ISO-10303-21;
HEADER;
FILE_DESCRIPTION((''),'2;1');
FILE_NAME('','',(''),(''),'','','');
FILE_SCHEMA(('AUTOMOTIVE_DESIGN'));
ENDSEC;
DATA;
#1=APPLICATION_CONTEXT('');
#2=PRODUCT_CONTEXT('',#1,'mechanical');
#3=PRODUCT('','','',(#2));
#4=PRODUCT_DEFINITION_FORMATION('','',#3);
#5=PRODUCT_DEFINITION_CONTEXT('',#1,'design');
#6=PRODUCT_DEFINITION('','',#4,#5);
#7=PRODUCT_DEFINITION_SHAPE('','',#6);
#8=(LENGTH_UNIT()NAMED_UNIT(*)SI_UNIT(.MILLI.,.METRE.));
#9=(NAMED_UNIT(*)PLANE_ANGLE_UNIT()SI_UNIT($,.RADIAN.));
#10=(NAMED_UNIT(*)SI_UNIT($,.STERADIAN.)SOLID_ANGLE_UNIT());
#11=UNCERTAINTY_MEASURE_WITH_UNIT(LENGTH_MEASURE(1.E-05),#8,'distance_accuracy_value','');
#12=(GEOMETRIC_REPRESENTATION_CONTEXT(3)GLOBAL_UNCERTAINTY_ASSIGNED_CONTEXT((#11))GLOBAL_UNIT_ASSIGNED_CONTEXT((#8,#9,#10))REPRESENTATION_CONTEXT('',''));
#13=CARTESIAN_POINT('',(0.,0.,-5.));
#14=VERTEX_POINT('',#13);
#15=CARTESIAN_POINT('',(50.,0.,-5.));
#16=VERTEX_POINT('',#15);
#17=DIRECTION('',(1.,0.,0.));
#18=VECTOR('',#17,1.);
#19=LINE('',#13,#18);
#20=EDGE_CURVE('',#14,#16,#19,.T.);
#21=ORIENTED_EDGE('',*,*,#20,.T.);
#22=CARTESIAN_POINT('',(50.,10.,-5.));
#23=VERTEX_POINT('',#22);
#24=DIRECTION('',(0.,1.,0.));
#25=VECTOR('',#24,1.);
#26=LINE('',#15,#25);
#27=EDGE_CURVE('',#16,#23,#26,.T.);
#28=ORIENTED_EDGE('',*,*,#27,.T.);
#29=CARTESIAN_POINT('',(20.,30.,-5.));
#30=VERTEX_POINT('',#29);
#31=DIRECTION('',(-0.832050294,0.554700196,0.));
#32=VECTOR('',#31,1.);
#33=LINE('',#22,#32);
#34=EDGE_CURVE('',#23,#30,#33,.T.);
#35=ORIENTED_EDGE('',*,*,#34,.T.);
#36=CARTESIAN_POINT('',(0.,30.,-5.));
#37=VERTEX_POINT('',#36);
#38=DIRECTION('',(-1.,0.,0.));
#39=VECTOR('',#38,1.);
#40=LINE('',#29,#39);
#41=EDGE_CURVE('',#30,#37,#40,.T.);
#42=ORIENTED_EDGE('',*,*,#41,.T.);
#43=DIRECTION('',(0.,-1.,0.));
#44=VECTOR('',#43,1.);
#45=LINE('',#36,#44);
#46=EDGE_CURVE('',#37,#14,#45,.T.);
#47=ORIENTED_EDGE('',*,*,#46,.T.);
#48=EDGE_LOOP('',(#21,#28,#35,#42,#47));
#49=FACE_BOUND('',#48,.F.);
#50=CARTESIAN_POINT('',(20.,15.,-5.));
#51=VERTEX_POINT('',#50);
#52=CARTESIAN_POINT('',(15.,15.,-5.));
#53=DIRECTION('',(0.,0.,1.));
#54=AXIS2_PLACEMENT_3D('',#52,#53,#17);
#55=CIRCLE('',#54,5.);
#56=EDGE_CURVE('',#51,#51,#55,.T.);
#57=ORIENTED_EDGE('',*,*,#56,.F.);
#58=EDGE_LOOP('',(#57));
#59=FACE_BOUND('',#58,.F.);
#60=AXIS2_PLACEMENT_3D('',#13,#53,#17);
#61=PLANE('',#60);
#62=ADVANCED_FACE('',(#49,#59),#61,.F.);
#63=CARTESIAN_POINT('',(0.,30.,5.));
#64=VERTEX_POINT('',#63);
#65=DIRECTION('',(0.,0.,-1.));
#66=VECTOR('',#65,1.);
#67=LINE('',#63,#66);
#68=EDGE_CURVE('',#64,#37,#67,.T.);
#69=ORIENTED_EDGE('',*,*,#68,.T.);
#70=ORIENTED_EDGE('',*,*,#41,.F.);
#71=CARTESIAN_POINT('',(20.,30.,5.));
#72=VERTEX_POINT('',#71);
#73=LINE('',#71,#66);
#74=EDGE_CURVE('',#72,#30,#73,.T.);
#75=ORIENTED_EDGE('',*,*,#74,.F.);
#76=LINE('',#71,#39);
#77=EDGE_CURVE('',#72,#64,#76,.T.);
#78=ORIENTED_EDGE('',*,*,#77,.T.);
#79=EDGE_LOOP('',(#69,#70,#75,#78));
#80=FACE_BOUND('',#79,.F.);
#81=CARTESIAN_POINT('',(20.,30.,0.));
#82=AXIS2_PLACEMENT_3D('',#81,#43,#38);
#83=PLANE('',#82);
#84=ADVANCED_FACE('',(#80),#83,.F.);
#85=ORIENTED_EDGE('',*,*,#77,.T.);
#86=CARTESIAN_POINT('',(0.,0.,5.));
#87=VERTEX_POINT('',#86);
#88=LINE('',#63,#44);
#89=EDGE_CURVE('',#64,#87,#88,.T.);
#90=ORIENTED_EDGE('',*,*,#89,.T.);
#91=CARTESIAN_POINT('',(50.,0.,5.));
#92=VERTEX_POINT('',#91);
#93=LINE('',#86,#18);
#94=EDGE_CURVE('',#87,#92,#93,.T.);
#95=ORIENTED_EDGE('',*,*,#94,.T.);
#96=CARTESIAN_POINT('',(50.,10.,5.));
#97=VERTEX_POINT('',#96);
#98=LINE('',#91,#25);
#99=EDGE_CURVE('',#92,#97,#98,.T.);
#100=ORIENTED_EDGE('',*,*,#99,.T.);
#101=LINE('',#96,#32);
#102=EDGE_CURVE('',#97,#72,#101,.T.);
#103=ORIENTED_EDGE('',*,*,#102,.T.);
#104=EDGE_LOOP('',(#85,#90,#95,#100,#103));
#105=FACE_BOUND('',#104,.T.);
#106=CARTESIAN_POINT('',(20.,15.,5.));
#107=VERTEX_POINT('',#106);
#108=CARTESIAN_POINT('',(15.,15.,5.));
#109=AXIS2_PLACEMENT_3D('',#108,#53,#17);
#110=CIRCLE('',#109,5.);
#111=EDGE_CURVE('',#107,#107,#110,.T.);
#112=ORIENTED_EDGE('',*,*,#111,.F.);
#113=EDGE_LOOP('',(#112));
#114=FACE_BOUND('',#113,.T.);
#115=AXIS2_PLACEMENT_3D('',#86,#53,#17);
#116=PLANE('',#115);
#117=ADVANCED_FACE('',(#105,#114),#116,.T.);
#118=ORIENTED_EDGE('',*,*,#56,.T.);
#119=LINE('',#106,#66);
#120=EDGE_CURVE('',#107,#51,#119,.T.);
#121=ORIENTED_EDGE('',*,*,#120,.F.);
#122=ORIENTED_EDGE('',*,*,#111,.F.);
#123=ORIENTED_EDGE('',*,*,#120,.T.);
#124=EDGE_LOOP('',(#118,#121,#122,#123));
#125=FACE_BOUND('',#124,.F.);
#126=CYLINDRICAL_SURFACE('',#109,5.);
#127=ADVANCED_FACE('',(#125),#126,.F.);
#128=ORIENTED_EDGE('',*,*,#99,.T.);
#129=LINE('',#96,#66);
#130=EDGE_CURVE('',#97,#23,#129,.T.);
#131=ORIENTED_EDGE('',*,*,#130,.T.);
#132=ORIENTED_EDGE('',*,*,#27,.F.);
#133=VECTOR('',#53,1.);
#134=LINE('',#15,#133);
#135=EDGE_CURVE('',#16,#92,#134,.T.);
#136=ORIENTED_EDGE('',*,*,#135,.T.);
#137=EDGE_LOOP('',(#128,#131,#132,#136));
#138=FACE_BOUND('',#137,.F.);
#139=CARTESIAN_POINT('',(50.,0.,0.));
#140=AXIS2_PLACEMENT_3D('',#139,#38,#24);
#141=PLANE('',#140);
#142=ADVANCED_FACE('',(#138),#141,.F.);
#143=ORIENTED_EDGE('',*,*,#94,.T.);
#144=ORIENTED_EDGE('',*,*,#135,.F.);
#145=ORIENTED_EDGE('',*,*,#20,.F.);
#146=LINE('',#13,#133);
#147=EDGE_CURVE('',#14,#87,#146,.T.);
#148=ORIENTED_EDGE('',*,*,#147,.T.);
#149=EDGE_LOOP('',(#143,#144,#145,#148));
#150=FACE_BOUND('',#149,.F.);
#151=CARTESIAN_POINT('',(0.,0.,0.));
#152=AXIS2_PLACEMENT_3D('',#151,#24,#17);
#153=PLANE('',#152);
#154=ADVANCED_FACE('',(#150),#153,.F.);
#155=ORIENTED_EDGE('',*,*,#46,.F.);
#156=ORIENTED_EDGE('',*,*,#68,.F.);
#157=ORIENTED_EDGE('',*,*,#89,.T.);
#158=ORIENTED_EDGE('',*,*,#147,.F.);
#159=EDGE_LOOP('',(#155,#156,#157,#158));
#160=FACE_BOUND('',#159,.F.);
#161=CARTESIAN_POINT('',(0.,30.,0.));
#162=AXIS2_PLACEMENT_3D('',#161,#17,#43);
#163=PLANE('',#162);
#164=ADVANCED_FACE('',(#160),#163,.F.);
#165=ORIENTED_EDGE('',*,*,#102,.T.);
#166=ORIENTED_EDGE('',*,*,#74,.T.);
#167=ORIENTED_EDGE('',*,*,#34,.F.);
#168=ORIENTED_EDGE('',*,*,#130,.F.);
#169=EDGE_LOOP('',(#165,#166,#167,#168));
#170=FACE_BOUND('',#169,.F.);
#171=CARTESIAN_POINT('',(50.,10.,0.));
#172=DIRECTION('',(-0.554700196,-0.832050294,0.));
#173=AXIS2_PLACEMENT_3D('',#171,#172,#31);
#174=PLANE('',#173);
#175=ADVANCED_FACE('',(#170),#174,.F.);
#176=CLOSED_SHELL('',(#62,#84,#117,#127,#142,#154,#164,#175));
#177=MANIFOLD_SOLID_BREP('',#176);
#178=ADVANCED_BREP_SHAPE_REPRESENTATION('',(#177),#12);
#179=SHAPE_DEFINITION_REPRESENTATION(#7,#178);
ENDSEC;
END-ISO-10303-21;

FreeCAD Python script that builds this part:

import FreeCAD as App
import Part
import Sketcher
Q = App.Units.Quantity


def add_polygon(sketch, points):
    """Adds a closed chain of lines whose ends are joined by coincident constraints."""
    first, n = sketch.GeometryCount, len(points)
    for a, b in zip(points, points[1:] + points[:1]):
        sketch.addGeometry(Part.LineSegment(App.Vector(*a, 0), App.Vector(*b, 0)), False)
    for i in range(n):
        sketch.addConstraint(Sketcher.Constraint("Coincident", first + i, 2, first + (i + 1) % n, 1))

doc = App.newDocument("Part")
params = doc.addObject("Spreadsheet::Sheet", "Params")
for row, (alias, value) in enumerate([
    ("sketch1_width", "50 mm"),
    ("sketch1_width2", "20 mm"),
    ("sketch1_height", "30 mm"),
    ("sketch1_height2", "10 mm"),
    ("pad1_length", "10 mm"),
    ("sketch2_diameter", "10 mm"),
], start=1):
    params.set(f"A{row}", alias)
    params.set(f"B{row}", "=" + value)
    params.setAlias(f"B{row}", alias)

body = doc.addObject("PartDesign::Body", "Body")

# Sketch on XY plane
sketch1 = body.newObject("Sketcher::SketchObject", "Sketch")
sketch1.AttachmentSupport = (doc.getObject("XY_Plane"), [""])
sketch1.MapMode = "FlatFace"
add_polygon(sketch1, [(0, 30), (0, 0), (50, 0), (50, 10), (20, 30)])  # lines 0-4
sketch1.addConstraint(Sketcher.Constraint("Vertical", 0))
sketch1.addConstraint(Sketcher.Constraint("Horizontal", 1))
sketch1.addConstraint(Sketcher.Constraint("Vertical", 2))
sketch1.addConstraint(Sketcher.Constraint("Horizontal", 4))
sketch1.addConstraint(Sketcher.Constraint("Coincident", 0, 2, -1, 1))
sketch1.addConstraint(Sketcher.Constraint("DistanceX", 1, 1, 1, 2, Q("50 mm")))
sketch1.addConstraint(Sketcher.Constraint("DistanceX", 4, 2, 4, 1, Q("20 mm")))
sketch1.addConstraint(Sketcher.Constraint("DistanceY", 0, 2, 0, 1, Q("30 mm")))
sketch1.addConstraint(Sketcher.Constraint("DistanceY", 2, 1, 2, 2, Q("10 mm")))
sketch1.setExpression("Constraints[10]", "Params.sketch1_width")
sketch1.setExpression("Constraints[11]", "Params.sketch1_width2")
sketch1.setExpression("Constraints[12]", "Params.sketch1_height")
sketch1.setExpression("Constraints[13]", "Params.sketch1_height2")
pad1 = body.newObject("PartDesign::Pad", "Pad")
pad1.Profile = sketch1
pad1.setExpression("Length", "Params.pad1_length")
pad1.Midplane = True

# Sketch on XY plane
sketch2 = body.newObject("Sketcher::SketchObject", "Sketch001")
sketch2.AttachmentSupport = (doc.getObject("XY_Plane"), [""])
sketch2.MapMode = "FlatFace"
sketch2.AttachmentOffset = App.Placement(App.Vector(0, 0, 5), App.Rotation())
sketch2.addGeometry(Part.Circle(App.Vector(15, 15, 0), App.Vector(0, 0, 1), 5), False)
sketch2.addConstraint(Sketcher.Constraint("Diameter", 0, Q("10 mm")))
sketch2.addConstraint(Sketcher.Constraint("DistanceX", -1, 1, 0, 3, Q("15 mm")))
sketch2.addConstraint(Sketcher.Constraint("DistanceY", -1, 1, 0, 3, Q("15 mm")))
sketch2.setExpression("Constraints[0]", "Params.sketch2_diameter")
pocket1 = body.newObject("PartDesign::Pocket", "Pocket")
pocket1.Profile = sketch2
pocket1.Type = "ThroughAll"
pocket1.Midplane = True

doc.recompute()
